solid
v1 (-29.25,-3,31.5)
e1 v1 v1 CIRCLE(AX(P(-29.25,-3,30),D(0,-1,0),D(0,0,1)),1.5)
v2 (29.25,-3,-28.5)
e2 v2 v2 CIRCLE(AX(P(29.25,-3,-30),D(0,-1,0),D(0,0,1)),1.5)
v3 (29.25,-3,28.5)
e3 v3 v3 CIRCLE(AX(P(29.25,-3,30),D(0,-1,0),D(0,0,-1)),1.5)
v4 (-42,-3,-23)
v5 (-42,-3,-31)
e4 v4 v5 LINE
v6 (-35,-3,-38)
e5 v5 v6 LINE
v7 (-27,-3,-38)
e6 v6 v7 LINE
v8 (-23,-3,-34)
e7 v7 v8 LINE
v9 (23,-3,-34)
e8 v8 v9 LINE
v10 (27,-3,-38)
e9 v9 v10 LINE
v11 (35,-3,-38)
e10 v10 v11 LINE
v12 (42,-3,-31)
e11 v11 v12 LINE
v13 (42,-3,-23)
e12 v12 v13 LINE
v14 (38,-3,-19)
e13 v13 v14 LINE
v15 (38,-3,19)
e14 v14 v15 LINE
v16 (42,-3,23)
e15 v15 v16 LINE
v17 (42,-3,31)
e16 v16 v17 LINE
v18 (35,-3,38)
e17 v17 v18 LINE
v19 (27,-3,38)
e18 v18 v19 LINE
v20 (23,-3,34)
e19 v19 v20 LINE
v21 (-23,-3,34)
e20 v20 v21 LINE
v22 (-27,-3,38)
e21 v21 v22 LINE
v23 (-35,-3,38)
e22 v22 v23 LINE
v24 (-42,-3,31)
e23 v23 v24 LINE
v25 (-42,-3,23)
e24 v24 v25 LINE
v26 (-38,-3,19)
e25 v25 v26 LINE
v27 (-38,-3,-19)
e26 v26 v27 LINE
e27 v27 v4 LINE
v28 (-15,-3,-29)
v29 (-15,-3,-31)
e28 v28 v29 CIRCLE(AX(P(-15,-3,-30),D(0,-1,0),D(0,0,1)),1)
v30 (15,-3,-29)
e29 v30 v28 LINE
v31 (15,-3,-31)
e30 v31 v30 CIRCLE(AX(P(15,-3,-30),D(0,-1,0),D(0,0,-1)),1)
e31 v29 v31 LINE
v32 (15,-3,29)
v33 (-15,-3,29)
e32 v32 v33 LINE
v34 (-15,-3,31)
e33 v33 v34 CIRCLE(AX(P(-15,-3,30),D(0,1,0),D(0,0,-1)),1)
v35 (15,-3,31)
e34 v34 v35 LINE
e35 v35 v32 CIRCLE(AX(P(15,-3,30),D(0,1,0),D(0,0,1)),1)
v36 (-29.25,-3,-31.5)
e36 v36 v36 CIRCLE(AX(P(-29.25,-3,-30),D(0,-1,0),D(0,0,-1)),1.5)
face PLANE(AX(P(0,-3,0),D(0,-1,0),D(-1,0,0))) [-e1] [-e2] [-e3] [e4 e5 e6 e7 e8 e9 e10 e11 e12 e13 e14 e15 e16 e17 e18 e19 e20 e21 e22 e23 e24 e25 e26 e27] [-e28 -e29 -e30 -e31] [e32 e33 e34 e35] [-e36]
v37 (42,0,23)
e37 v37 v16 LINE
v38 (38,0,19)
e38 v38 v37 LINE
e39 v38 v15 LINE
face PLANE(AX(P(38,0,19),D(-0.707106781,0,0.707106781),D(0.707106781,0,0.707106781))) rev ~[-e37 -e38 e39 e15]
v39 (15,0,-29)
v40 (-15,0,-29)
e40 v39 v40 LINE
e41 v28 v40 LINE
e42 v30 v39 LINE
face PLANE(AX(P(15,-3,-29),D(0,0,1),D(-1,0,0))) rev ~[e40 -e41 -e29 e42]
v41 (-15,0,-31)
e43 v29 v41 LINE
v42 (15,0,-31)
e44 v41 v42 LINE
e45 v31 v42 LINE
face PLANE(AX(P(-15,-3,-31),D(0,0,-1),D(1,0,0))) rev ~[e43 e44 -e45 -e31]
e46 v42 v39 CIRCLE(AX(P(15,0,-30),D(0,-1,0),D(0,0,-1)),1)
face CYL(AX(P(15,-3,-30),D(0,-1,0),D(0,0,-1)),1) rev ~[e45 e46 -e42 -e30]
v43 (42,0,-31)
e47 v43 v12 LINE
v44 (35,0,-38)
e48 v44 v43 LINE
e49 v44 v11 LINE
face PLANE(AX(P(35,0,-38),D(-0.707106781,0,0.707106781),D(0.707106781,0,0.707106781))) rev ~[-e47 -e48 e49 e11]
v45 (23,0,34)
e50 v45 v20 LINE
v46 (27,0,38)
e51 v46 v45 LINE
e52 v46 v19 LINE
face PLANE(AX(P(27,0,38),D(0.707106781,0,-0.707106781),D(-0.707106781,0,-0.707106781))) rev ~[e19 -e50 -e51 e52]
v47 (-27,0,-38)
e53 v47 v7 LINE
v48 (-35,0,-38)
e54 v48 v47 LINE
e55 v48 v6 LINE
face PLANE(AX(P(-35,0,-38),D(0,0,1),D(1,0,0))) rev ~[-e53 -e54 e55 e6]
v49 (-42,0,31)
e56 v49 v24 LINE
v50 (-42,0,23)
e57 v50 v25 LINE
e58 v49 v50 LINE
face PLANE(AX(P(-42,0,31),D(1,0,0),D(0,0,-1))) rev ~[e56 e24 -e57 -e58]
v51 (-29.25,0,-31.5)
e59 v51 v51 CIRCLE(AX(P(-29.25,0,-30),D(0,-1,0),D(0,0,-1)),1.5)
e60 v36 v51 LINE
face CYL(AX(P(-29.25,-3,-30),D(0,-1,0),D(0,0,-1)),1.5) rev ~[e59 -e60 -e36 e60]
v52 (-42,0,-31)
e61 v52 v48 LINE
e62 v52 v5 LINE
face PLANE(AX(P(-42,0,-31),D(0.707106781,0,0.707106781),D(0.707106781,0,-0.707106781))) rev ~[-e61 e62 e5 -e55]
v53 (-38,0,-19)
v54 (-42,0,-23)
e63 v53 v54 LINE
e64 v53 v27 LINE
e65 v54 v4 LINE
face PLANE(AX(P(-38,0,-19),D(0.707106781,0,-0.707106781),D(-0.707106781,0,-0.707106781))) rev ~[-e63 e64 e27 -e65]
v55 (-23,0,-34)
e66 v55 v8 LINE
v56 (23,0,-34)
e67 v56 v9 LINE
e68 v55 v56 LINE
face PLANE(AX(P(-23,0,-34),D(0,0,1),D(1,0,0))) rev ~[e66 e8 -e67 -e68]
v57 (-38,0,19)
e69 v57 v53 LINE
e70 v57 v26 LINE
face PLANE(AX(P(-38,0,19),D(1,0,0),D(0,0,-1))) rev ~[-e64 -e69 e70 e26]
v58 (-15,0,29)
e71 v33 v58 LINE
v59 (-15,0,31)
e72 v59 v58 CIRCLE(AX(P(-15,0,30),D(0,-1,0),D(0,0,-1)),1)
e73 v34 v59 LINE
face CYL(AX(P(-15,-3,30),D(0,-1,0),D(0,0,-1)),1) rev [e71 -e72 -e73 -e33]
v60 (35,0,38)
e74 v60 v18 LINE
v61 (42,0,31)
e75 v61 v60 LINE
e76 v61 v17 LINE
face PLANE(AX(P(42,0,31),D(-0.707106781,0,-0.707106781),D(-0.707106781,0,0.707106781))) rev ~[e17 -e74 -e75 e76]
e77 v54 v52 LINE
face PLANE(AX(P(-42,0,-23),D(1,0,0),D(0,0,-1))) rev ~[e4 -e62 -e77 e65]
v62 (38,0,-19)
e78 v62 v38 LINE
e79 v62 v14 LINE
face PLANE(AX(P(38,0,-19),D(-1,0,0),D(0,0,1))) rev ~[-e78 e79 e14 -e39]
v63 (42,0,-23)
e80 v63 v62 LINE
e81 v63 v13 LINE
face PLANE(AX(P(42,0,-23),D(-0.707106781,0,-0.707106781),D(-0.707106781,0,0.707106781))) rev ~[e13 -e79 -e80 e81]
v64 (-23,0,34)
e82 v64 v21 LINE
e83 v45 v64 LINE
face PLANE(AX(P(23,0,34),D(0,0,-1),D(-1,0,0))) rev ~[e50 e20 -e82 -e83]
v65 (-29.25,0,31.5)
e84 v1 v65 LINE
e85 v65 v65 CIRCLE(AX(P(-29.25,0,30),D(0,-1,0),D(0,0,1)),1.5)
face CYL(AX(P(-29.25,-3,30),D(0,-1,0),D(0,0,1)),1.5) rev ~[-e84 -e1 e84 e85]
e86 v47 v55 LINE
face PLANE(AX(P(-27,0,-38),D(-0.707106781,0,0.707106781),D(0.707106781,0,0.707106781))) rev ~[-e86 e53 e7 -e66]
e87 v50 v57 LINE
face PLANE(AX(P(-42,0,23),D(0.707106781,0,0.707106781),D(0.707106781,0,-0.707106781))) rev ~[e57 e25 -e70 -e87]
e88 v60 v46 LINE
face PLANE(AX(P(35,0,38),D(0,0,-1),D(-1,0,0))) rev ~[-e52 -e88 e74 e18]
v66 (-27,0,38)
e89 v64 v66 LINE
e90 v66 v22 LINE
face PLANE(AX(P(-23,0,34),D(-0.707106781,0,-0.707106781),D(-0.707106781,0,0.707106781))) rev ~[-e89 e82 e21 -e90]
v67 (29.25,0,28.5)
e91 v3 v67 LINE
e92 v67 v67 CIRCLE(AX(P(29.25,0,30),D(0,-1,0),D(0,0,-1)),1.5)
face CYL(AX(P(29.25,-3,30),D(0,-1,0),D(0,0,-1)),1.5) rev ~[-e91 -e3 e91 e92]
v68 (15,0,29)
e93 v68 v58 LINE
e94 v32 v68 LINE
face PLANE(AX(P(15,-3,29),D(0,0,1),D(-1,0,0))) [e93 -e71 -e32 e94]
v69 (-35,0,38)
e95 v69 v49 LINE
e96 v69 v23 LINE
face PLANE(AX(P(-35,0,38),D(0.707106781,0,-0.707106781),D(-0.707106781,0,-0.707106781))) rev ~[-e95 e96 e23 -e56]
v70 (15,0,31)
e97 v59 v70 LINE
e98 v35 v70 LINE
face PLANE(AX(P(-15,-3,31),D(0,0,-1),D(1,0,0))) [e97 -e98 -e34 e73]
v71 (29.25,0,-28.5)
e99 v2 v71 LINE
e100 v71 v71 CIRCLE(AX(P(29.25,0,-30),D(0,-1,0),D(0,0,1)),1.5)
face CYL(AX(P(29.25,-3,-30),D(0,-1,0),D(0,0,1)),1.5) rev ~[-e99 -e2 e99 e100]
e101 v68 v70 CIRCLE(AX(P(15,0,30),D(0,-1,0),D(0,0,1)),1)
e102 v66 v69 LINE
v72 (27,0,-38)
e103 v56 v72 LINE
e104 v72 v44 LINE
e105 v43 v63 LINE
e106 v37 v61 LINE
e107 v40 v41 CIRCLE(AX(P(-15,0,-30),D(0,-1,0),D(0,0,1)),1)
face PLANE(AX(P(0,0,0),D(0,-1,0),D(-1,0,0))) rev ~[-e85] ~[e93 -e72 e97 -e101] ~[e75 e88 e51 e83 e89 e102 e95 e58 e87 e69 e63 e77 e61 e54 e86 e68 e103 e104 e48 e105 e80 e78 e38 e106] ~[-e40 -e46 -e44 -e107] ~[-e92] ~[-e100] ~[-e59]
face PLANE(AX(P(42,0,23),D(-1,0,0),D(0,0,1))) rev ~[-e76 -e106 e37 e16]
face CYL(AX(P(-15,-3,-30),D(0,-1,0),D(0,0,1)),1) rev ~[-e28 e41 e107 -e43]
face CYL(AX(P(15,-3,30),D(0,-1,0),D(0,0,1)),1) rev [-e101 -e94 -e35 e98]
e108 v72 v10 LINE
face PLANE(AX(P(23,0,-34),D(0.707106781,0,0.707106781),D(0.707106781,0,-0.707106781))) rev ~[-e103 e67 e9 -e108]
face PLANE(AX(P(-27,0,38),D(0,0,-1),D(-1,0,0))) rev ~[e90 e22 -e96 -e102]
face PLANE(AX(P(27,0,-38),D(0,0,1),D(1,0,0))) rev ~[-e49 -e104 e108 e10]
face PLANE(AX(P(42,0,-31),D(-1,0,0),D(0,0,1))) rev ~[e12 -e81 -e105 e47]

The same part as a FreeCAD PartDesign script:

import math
import FreeCAD as App
import Part
import Sketcher

doc = App.newDocument("Part")
params = doc.addObject("Spreadsheet::Sheet", "Params")
for row, (alias, value) in enumerate([
    ("sketch1_width", "46 mm"),
    ("sketch1_width2", "8 mm"),
    ("sketch1_height", "38 mm"),
    ("pad1_length", "3 mm"),
    ("sketch2_diameter", "3 mm"),
    ("sketch3_radius", "1 mm"),
    ("sketch3_width", "30 mm"),
    ("pocket2_length", "10 mm"),
], start=1):
    params.set(f"A{row}", alias)
    params.set(f"B{row}", "=" + value)
    params.setAlias(f"B{row}", alias)

body = doc.addObject("PartDesign::Body", "Body")

# Sketch on XZ plane
sketch1 = body.newObject("Sketcher::SketchObject", "Sketch")
sketch1.AttachmentSupport = (doc.getObject("XZ_Plane"), [""])
sketch1.MapMode = "FlatFace"
sketch1.addGeometry([
    Part.LineSegment(App.Vector(23, -34, 0), App.Vector(-23, -34, 0)),  # 0
    Part.LineSegment(App.Vector(-23, -34, 0), App.Vector(-27, -38, 0)),  # 1
    Part.LineSegment(App.Vector(-27, -38, 0), App.Vector(-35, -38, 0)),  # 2
    Part.LineSegment(App.Vector(-35, -38, 0), App.Vector(-42, -31, 0)),  # 3
    Part.LineSegment(App.Vector(-42, -31, 0), App.Vector(-42, -23, 0)),  # 4
    Part.LineSegment(App.Vector(-42, -23, 0), App.Vector(-38, -19, 0)),  # 5
    Part.LineSegment(App.Vector(-38, -19, 0), App.Vector(-38, 19, 0)),  # 6
    Part.LineSegment(App.Vector(-38, 19, 0), App.Vector(-42, 23, 0)),  # 7
    Part.LineSegment(App.Vector(-42, 23, 0), App.Vector(-42, 31, 0)),  # 8
    Part.LineSegment(App.Vector(-42, 31, 0), App.Vector(-35, 38, 0)),  # 9
    Part.LineSegment(App.Vector(-35, 38, 0), App.Vector(-27, 38, 0)),  # 10
    Part.LineSegment(App.Vector(-27, 38, 0), App.Vector(-23, 34, 0)),  # 11
    Part.LineSegment(App.Vector(-23, 34, 0), App.Vector(23, 34, 0)),  # 12
    Part.LineSegment(App.Vector(23, 34, 0), App.Vector(27, 38, 0)),  # 13
    Part.LineSegment(App.Vector(27, 38, 0), App.Vector(35, 38, 0)),  # 14
    Part.LineSegment(App.Vector(35, 38, 0), App.Vector(42, 31, 0)),  # 15
    Part.LineSegment(App.Vector(42, 31, 0), App.Vector(42, 23, 0)),  # 16
    Part.LineSegment(App.Vector(42, 23, 0), App.Vector(38, 19, 0)),  # 17
    Part.LineSegment(App.Vector(38, 19, 0), App.Vector(38, -19, 0)),  # 18
    Part.LineSegment(App.Vector(38, -19, 0), App.Vector(42, -23, 0)),  # 19
    Part.LineSegment(App.Vector(42, -23, 0), App.Vector(42, -31, 0)),  # 20
    Part.LineSegment(App.Vector(42, -31, 0), App.Vector(35, -38, 0)),  # 21
    Part.LineSegment(App.Vector(35, -38, 0), App.Vector(27, -38, 0)),  # 22
    Part.LineSegment(App.Vector(27, -38, 0), App.Vector(23, -34, 0)),  # 23
], False)
sketch1.addConstraint([
    Sketcher.Constraint("Coincident", 0, 2, 1, 1),
    Sketcher.Constraint("Coincident", 1, 2, 2, 1),
    Sketcher.Constraint("Coincident", 2, 2, 3, 1),
    Sketcher.Constraint("Coincident", 3, 2, 4, 1),
    Sketcher.Constraint("Coincident", 4, 2, 5, 1),
    Sketcher.Constraint("Coincident", 5, 2, 6, 1),
    Sketcher.Constraint("Coincident", 6, 2, 7, 1),
    Sketcher.Constraint("Coincident", 7, 2, 8, 1),
    Sketcher.Constraint("Coincident", 8, 2, 9, 1),
    Sketcher.Constraint("Coincident", 9, 2, 10, 1),
    Sketcher.Constraint("Coincident", 10, 2, 11, 1),
    Sketcher.Constraint("Coincident", 11, 2, 12, 1),
    Sketcher.Constraint("Coincident", 12, 2, 13, 1),
    Sketcher.Constraint("Coincident", 13, 2, 14, 1),
    Sketcher.Constraint("Coincident", 14, 2, 15, 1),
    Sketcher.Constraint("Coincident", 15, 2, 16, 1),
    Sketcher.Constraint("Coincident", 16, 2, 17, 1),
    Sketcher.Constraint("Coincident", 17, 2, 18, 1),
    Sketcher.Constraint("Coincident", 18, 2, 19, 1),
    Sketcher.Constraint("Coincident", 19, 2, 20, 1),
    Sketcher.Constraint("Coincident", 20, 2, 21, 1),
    Sketcher.Constraint("Coincident", 21, 2, 22, 1),
    Sketcher.Constraint("Coincident", 22, 2, 23, 1),
    Sketcher.Constraint("Coincident", 23, 2, 0, 1),
    Sketcher.Constraint("Horizontal", 0),
    Sketcher.Constraint("Horizontal", 2),
    Sketcher.Constraint("Vertical", 4),
    Sketcher.Constraint("Vertical", 6),
    Sketcher.Constraint("Vertical", 8),
    Sketcher.Constraint("Horizontal", 10),
    Sketcher.Constraint("Horizontal", 12),
    Sketcher.Constraint("Horizontal", 14),
    Sketcher.Constraint("Vertical", 16),
    Sketcher.Constraint("Vertical", 18),
    Sketcher.Constraint("Vertical", 20),
    Sketcher.Constraint("Horizontal", 22),
    Sketcher.Constraint("Symmetric", 0, 2, 12, 2, -1, 1),
    Sketcher.Constraint("Symmetric", 1, 2, 13, 2, -1, 1),
    Sketcher.Constraint("Symmetric", 3, 2, 15, 2, -1, 1),
    Sketcher.Constraint("Symmetric", 5, 2, 17, 2, -1, 1),
    Sketcher.Constraint("Symmetric", 7, 2, 19, 2, -1, 1),
    Sketcher.Constraint("Symmetric", 9, 2, 21, 2, -1, 1),
    Sketcher.Constraint("Symmetric", 10, 2, 13, 2, -2),
    Sketcher.Constraint("Symmetric", 8, 2, 15, 2, -2),
    Sketcher.Constraint("Perpendicular", 1, 3),
    Sketcher.Constraint("Perpendicular", 3, 5),
    Sketcher.Constraint("Perpendicular", 5, 7),
    Sketcher.Constraint("Perpendicular", 7, 9),
    Sketcher.Constraint("Perpendicular", 9, 11),
    Sketcher.Constraint("Perpendicular", 13, 15),
    Sketcher.Constraint("Perpendicular", 15, 17),
    Sketcher.Constraint("Perpendicular", 17, 19),
    Sketcher.Constraint("Perpendicular", 19, 21),
    Sketcher.Constraint("Perpendicular", 21, 23),
    Sketcher.Constraint("Horizontal", 7, 2, 16, 2),
    Sketcher.Constraint("Horizontal", 6, 2, 17, 2),
    Sketcher.Constraint("Vertical", 13, 2, 22, 2),
    Sketcher.Constraint("Equal", 22, 4),
    Sketcher.Constraint("Equal", 1, 5),
    Sketcher.Constraint("DistanceX", 0, 2, 0, 1, 46.0),
    Sketcher.Constraint("DistanceX", 2, 2, 2, 1, 8.0),
    Sketcher.Constraint("DistanceY", 6, 1, 6, 2, 38.0),
    Sketcher.Constraint("DistanceY", 0, 2, -1, 1, 34.0),
    Sketcher.Constraint("DistanceX", 1, 2, -1, 1, 27.0),
])
sketch1.setExpression("Constraints[59]", "Params.sketch1_width")
sketch1.setExpression("Constraints[60]", "Params.sketch1_width2")
sketch1.setExpression("Constraints[61]", "Params.sketch1_height")
pad1 = body.newObject("PartDesign::Pad", "Pad")
pad1.Profile = sketch1
pad1.setExpression("Length", "Params.pad1_length")

# Sketch on XZ plane
sketch2 = body.newObject("Sketcher::SketchObject", "Sketch001")
sketch2.AttachmentSupport = (doc.getObject("XZ_Plane"), [""])
sketch2.MapMode = "FlatFace"
sketch2.AttachmentOffset = App.Placement(App.Vector(0, 0, 3), App.Rotation())
sketch2.addGeometry([
    Part.Circle(App.Vector(-29.2, -30, 0), App.Vector(0, 0, 1), 1.5),
    Part.Circle(App.Vector(29.2, -30, 0), App.Vector(0, 0, 1), 1.5),
    Part.Circle(App.Vector(29.2, 30, 0), App.Vector(0, 0, 1), 1.5),
    Part.Circle(App.Vector(-29.2, 30, 0), App.Vector(0, 0, 1), 1.5),
], False)
sketch2.addConstraint([
    Sketcher.Constraint("Equal", 0, 1),
    Sketcher.Constraint("Equal", 1, 2),
    Sketcher.Constraint("Equal", 2, 3),
    Sketcher.Constraint("Symmetric", 0, 3, 2, 3, -1, 1),
    Sketcher.Constraint("Symmetric", 1, 3, 3, 3, -1, 1),
    Sketcher.Constraint("Symmetric", 0, 3, 1, 3, -2),
    Sketcher.Constraint("Diameter", 0, 3.0),
    Sketcher.Constraint("DistanceY", 0, 3, -1, 1, 30.0),
    Sketcher.Constraint("DistanceX", 0, 3, 1, 3, 58.5),
])
sketch2.setExpression("Constraints[6]", "Params.sketch2_diameter")
pocket1 = body.newObject("PartDesign::Pocket", "Pocket")
pocket1.Profile = sketch2
pocket1.Type = "ThroughAll"

# Sketch on XZ plane
sketch3 = body.newObject("Sketcher::SketchObject", "Sketch002")
sketch3.AttachmentSupport = (doc.getObject("XZ_Plane"), [""])
sketch3.MapMode = "FlatFace"
sketch3.AttachmentOffset = App.Placement(App.Vector(0, 0, 3), App.Rotation())
sketch3.addGeometry([
    Part.LineSegment(App.Vector(-15, -31, 0), App.Vector(15, -31, 0)),  # 0
    Part.ArcOfCircle(Part.Circle(App.Vector(15, -30, 0), App.Vector(0, 0, 1), 1), math.radians(-90), math.radians(90)),  # 1
    Part.LineSegment(App.Vector(15, -29, 0), App.Vector(-15, -29, 0)),  # 2
    Part.ArcOfCircle(Part.Circle(App.Vector(-15, -30, 0), App.Vector(0, 0, 1), 1), math.radians(90), math.radians(270)),  # 3
    Part.LineSegment(App.Vector(15, 31, 0), App.Vector(-15, 31, 0)),  # 4
    Part.ArcOfCircle(Part.Circle(App.Vector(-15, 30, 0), App.Vector(0, 0, 1), 1), math.radians(90), math.radians(270)),  # 5
    Part.LineSegment(App.Vector(-15, 29, 0), App.Vector(15, 29, 0)),  # 6
    Part.ArcOfCircle(Part.Circle(App.Vector(15, 30, 0), App.Vector(0, 0, 1), 1), math.radians(-90), math.radians(90)),  # 7
], False)
sketch3.addConstraint([
    Sketcher.Constraint("Tangent", 0, 2, 1, 1),
    Sketcher.Constraint("Tangent", 1, 2, 2, 1),
    Sketcher.Constraint("Tangent", 2, 2, 3, 1),
    Sketcher.Constraint("Tangent", 3, 2, 0, 1),
    Sketcher.Constraint("Tangent", 4, 2, 5, 1),
    Sketcher.Constraint("Tangent", 5, 2, 6, 1),
    Sketcher.Constraint("Tangent", 6, 2, 7, 1),
    Sketcher.Constraint("Tangent", 7, 2, 4, 1),
    Sketcher.Constraint("Horizontal", 0),
    Sketcher.Constraint("Horizontal", 2),
    Sketcher.Constraint("Horizontal", 4),
    Sketcher.Constraint("Horizontal", 6),
    Sketcher.Constraint("Equal", 3, 5),
    Sketcher.Constraint("Symmetric", 1, 3, 5, 3, -1, 1),
    Sketcher.Constraint("Vertical", 3, 3, 5, 3),
    Sketcher.Constraint("Vertical", 1, 3, 7, 3),
    Sketcher.Constraint("Radius", 1, 1.0),
    Sketcher.Constraint("DistanceX", 0, 1, 0, 2, 30.0),
    Sketcher.Constraint("DistanceY", 1, 3, -1, 1, 30.0),
])
sketch3.setExpression("Constraints[16]", "Params.sketch3_radius")
sketch3.setExpression("Constraints[17]", "Params.sketch3_width")
pocket2 = body.newObject("PartDesign::Pocket", "Pocket001")
pocket2.Profile = sketch3
pocket2.setExpression("Length", "Params.pocket2_length")

doc.recompute()
